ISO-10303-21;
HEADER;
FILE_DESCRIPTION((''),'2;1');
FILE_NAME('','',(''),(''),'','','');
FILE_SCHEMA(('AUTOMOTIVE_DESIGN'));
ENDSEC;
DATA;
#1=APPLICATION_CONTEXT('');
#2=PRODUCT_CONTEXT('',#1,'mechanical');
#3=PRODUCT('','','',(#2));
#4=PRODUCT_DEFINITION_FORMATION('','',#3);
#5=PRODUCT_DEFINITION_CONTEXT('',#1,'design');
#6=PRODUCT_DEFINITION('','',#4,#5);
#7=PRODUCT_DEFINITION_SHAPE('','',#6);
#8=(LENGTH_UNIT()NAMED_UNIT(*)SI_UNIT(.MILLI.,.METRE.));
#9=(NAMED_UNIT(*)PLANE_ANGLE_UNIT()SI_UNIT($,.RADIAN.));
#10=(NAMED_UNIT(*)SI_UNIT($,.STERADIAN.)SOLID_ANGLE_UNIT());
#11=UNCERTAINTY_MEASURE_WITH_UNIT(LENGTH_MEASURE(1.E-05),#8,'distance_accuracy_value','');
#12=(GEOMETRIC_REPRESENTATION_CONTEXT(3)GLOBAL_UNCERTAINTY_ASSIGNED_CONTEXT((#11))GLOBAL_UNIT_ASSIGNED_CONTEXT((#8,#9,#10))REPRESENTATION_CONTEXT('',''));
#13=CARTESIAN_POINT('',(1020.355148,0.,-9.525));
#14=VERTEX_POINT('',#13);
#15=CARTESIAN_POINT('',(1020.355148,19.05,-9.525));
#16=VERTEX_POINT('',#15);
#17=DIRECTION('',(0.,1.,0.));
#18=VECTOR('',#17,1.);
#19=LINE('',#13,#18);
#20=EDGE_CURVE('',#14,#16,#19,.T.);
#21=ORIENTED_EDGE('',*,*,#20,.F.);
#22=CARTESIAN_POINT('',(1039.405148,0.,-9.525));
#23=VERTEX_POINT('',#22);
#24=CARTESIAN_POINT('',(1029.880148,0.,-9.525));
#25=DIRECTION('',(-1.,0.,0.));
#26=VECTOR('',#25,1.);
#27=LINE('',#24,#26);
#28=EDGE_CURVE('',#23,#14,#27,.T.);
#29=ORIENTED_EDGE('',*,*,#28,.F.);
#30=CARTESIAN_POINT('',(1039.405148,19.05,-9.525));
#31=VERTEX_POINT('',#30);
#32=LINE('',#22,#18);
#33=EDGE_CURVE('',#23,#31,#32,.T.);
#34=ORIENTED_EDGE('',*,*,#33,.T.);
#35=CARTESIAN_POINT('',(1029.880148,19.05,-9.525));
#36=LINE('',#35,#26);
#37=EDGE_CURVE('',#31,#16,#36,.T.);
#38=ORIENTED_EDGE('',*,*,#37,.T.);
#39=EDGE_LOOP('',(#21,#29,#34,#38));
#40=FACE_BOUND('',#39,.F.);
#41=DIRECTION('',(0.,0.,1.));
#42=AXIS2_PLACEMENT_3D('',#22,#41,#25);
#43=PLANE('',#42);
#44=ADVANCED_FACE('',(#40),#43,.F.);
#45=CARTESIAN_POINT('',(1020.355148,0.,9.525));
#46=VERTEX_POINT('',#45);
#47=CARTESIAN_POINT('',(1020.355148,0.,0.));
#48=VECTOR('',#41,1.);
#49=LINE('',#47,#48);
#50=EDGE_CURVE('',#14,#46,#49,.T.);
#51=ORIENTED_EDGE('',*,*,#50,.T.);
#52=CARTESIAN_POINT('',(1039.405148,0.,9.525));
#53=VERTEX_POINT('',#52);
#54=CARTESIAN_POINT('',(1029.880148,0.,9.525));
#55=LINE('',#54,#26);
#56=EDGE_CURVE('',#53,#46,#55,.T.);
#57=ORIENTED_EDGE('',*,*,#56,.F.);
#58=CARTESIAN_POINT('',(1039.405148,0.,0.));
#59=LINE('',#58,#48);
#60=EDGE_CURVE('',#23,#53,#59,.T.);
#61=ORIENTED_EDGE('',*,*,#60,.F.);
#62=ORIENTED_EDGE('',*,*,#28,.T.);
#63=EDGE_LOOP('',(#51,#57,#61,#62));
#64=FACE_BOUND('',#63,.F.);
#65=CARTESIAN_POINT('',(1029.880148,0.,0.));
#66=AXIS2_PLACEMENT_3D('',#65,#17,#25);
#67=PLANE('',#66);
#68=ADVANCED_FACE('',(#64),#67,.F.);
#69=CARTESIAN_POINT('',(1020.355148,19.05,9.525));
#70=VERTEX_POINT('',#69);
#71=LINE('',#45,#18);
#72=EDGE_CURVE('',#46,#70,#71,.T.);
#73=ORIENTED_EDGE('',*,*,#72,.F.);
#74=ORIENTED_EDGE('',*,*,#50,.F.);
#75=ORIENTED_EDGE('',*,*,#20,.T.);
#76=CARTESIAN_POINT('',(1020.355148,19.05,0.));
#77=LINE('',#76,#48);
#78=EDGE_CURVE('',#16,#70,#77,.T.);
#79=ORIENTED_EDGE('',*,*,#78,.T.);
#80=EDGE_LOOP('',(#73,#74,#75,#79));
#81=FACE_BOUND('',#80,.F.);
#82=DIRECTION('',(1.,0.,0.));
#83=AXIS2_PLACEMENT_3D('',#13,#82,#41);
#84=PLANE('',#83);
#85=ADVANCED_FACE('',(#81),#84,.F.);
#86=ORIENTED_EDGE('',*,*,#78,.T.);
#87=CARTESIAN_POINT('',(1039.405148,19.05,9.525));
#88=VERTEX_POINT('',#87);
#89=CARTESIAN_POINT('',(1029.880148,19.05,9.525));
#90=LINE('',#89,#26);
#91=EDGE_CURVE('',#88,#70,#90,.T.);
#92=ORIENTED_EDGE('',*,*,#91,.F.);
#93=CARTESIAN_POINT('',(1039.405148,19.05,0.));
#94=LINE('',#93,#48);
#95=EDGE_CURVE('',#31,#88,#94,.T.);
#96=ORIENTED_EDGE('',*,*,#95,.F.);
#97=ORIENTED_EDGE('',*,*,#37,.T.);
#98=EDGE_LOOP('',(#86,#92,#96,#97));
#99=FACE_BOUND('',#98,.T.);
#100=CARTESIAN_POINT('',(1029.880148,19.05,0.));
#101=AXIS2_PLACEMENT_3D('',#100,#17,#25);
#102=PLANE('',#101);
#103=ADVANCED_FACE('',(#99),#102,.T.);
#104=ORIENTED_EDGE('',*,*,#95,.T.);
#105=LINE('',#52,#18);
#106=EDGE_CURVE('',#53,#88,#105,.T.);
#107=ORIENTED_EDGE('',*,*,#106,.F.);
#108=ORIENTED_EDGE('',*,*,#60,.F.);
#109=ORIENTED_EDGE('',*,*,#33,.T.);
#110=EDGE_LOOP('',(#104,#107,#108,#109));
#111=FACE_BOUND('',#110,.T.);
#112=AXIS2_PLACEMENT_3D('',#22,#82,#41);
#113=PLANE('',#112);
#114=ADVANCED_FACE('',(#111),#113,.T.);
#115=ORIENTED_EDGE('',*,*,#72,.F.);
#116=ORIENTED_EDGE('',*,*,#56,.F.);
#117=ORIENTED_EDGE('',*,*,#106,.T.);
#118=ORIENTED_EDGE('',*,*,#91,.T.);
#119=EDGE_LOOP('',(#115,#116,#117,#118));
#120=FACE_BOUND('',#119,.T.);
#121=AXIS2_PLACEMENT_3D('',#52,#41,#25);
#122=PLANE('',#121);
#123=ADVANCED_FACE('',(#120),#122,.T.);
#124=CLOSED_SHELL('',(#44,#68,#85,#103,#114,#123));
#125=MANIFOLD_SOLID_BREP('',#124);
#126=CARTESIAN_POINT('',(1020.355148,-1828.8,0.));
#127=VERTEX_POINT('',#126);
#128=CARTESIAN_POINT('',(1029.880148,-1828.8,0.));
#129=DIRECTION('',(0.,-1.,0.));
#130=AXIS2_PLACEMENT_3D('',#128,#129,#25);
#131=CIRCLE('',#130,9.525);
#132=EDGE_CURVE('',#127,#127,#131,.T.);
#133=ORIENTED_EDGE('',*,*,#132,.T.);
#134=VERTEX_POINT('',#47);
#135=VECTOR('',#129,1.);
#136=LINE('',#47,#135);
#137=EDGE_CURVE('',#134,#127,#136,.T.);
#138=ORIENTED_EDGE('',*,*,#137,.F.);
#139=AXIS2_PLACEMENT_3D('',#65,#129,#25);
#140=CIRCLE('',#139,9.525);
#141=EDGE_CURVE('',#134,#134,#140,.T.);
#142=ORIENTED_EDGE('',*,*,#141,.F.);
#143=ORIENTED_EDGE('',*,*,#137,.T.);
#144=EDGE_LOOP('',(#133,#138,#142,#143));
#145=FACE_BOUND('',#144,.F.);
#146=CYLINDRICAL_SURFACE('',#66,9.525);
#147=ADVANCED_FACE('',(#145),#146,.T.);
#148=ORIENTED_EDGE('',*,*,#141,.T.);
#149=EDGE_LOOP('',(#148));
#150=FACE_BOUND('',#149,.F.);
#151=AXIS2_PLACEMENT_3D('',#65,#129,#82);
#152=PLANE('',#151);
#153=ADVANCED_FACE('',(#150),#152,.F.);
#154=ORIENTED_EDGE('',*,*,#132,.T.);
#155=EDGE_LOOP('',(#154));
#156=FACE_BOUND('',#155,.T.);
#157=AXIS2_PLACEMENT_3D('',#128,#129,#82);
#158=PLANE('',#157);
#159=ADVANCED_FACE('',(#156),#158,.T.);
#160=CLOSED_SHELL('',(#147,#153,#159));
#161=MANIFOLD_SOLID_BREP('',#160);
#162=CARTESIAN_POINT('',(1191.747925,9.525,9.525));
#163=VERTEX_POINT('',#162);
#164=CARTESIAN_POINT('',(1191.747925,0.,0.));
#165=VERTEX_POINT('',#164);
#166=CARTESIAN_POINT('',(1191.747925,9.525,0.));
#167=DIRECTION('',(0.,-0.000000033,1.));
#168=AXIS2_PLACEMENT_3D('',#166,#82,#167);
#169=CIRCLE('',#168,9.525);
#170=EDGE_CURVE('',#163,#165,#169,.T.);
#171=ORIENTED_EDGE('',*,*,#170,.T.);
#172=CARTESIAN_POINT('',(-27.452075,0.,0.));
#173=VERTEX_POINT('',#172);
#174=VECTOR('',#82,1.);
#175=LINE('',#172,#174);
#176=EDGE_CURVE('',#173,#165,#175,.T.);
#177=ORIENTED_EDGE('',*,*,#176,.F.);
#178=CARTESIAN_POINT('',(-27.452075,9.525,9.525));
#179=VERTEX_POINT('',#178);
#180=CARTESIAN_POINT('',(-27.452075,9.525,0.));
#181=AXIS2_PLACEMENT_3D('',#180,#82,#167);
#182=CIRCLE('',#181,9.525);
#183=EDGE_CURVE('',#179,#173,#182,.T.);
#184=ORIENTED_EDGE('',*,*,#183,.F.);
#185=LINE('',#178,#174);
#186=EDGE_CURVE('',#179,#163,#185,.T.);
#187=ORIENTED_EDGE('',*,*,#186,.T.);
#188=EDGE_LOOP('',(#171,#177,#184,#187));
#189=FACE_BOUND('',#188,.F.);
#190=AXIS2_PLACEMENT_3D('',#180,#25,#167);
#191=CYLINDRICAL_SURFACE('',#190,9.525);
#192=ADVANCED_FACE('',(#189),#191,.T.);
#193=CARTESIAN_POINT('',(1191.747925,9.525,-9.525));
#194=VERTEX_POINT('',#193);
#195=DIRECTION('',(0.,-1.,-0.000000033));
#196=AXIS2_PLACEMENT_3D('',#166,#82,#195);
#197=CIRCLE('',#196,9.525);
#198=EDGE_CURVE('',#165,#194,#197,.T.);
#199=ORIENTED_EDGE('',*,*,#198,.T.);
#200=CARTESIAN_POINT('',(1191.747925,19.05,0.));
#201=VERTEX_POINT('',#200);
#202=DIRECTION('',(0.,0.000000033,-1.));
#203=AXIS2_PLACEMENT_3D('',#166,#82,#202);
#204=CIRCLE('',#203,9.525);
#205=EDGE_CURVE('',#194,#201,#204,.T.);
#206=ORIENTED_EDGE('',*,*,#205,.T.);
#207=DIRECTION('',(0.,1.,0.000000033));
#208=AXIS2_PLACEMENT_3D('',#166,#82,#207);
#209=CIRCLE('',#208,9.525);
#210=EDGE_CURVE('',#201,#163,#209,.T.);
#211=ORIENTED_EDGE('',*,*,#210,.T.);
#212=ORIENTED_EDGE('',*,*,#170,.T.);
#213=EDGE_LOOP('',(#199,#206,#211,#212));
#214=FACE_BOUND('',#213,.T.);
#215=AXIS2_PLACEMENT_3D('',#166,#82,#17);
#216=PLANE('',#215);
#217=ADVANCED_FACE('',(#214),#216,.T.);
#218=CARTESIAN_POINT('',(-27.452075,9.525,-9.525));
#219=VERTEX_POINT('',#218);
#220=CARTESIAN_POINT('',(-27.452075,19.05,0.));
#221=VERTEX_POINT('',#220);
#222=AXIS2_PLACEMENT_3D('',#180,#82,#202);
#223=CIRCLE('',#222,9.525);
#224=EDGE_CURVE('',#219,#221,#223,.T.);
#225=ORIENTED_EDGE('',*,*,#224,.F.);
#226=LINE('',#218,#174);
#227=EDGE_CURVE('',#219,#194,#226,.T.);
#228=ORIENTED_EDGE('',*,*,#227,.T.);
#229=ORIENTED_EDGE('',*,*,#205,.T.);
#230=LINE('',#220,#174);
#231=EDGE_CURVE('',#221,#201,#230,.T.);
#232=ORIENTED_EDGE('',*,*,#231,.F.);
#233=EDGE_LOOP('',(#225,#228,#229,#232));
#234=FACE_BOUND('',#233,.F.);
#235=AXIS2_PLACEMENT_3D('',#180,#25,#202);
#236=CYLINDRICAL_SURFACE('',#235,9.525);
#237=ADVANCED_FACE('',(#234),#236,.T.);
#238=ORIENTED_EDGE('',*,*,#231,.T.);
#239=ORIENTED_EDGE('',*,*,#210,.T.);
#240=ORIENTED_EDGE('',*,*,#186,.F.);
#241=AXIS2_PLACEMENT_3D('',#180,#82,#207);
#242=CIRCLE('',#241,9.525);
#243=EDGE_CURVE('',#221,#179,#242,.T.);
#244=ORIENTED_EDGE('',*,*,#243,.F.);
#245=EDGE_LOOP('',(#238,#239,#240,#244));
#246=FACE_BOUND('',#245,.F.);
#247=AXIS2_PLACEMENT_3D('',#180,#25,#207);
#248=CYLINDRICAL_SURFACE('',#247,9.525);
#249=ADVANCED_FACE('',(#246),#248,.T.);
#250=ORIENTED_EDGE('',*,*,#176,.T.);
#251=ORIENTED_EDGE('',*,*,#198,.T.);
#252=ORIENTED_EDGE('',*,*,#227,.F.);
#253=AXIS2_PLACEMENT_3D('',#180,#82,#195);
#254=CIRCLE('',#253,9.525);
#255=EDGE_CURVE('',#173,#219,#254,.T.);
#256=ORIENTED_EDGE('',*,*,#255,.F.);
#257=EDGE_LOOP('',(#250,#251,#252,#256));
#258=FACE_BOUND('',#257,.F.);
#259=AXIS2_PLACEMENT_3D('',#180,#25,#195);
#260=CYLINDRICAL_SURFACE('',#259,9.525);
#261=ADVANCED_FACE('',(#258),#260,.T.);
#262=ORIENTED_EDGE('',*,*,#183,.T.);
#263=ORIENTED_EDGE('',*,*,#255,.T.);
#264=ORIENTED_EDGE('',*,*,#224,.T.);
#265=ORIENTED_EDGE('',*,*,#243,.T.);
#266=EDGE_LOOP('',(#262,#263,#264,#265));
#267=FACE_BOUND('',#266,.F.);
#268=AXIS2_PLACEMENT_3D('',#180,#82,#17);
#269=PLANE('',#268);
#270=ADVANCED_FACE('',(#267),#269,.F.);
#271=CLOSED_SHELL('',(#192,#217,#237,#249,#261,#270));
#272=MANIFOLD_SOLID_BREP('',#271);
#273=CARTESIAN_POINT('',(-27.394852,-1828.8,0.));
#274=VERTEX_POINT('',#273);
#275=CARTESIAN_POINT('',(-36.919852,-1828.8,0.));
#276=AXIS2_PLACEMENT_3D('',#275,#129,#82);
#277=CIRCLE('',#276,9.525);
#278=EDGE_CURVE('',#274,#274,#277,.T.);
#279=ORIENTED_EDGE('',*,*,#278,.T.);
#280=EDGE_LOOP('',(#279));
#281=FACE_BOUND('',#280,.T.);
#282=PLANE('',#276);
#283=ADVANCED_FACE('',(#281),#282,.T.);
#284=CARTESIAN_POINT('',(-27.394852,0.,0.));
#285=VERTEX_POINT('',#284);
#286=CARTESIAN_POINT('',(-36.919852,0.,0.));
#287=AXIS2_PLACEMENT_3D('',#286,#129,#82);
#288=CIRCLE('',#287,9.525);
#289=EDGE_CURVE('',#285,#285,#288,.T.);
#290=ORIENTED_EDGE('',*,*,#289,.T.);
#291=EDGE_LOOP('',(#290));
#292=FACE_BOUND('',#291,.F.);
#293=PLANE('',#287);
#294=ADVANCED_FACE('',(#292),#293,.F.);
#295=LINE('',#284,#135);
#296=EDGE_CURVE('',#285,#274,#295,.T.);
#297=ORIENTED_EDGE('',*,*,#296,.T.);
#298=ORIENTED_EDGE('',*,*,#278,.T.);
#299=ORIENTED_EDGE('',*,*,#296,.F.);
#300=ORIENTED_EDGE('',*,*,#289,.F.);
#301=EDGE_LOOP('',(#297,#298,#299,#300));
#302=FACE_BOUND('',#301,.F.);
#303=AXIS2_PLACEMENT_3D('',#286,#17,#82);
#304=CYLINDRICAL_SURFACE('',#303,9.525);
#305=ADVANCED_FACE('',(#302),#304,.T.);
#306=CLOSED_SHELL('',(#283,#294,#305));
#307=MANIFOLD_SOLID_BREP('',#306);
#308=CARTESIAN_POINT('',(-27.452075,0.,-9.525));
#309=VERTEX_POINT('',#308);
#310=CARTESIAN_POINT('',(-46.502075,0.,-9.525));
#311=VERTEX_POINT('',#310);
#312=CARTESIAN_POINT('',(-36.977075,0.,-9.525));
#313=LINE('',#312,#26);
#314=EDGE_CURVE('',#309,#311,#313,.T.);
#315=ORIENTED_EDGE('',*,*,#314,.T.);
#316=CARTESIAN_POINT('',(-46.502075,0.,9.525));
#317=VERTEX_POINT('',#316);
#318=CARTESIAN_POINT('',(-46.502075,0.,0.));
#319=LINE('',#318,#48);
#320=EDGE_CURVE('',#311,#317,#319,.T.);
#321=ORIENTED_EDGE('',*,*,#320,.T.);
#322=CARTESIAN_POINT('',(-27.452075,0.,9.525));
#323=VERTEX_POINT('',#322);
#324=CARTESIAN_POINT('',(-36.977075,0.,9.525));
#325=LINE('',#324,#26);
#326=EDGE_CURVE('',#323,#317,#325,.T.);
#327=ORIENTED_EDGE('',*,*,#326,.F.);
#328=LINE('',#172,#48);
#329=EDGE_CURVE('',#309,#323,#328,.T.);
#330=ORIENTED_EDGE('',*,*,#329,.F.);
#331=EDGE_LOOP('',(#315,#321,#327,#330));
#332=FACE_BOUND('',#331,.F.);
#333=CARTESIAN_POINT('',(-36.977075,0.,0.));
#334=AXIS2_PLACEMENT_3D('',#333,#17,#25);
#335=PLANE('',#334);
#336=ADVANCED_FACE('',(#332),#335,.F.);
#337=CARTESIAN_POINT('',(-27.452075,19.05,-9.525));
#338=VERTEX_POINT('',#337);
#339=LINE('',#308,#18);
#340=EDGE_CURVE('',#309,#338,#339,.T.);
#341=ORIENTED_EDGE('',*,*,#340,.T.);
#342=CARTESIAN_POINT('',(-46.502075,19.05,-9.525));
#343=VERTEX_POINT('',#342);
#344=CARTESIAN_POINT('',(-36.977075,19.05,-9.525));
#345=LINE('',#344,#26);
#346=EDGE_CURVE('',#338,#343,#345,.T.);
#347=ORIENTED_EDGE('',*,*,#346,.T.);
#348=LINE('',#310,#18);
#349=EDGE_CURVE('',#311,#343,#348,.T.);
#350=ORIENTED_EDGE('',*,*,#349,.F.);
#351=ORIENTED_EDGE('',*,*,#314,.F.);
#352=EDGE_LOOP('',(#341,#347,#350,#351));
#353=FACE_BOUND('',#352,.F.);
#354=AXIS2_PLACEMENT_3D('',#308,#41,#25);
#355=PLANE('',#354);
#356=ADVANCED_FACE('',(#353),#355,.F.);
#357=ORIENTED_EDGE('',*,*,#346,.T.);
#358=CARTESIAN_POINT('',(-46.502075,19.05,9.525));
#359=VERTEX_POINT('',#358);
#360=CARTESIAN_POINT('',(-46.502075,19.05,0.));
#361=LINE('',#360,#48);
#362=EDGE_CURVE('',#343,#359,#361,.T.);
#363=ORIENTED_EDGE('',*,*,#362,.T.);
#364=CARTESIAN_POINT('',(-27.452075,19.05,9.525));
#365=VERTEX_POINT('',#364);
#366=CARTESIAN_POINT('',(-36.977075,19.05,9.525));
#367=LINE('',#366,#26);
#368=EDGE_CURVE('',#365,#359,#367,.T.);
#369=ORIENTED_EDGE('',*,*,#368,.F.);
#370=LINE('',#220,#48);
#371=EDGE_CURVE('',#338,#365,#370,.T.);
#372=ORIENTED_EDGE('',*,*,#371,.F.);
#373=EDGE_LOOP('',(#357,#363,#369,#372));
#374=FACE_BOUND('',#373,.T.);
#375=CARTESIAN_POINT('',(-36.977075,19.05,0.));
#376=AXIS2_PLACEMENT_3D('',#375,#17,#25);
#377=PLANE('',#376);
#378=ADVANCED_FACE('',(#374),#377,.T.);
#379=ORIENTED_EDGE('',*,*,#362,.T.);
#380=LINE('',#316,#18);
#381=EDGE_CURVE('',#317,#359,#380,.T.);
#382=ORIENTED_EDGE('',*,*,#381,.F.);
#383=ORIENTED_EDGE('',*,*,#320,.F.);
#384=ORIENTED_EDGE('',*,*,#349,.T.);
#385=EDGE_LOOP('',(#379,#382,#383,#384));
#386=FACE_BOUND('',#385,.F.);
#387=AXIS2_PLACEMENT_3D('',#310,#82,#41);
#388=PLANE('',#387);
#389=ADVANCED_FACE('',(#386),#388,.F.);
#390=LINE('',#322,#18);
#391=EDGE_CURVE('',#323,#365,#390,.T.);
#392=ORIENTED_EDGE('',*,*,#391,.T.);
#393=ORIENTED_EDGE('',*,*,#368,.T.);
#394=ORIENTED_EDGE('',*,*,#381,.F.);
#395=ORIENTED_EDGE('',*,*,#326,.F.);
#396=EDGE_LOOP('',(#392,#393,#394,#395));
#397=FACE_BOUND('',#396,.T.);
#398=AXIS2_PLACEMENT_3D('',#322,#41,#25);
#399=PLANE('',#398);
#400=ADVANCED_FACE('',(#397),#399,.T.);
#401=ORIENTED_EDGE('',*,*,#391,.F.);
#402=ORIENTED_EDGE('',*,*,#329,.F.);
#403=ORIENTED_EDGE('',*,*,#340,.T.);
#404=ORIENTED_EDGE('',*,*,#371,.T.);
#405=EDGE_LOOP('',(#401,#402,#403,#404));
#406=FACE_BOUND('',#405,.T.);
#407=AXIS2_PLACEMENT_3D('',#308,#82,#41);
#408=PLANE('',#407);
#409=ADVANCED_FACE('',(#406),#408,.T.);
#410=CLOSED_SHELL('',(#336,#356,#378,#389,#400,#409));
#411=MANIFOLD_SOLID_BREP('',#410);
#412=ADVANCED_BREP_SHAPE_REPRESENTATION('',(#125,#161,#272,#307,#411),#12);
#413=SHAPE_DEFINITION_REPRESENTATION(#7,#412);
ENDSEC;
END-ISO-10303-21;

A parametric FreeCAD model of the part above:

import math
import FreeCAD as App
import Part
import Sketcher
from FreeCAD import Vector
Q = App.Units.Quantity


def add_polygon(sketch, points):
    """Adds a closed chain of lines whose ends are joined by coincident constraints."""
    first, n = sketch.GeometryCount, len(points)
    for a, b in zip(points, points[1:] + points[:1]):
        sketch.addGeometry(Part.LineSegment(App.Vector(*a, 0), App.Vector(*b, 0)), False)
    for i in range(n):
        sketch.addConstraint(Sketcher.Constraint("Coincident", first + i, 2, first + (i + 1) % n, 1))

doc = App.newDocument("Part")
body = doc.addObject("PartDesign::Body", "Body")
body.AllowCompound = True

sketch1 = body.newObject("Sketcher::SketchObject", "Sketch")
sketch1.AttachmentSupport = (doc.getObject("XZ_Plane"), [""])
sketch1.MapMode = "FlatFace"
sketch1.addGeometry([
    Part.Circle(Vector(-37, 0, 0), Vector(0, 0, 1), 10),
    Part.Circle(Vector(1030, 0, 0), Vector(0, 0, 1), 10),
], False)
sketch1.addConstraint([
    Sketcher.Constraint("Equal", 0, 1),
    Sketcher.Constraint("PointOnObject", 0, 3, -1),
    Sketcher.Constraint("PointOnObject", 1, 3, -1),
    Sketcher.Constraint("Diameter", 0, Q("0.75 in")),
    Sketcher.Constraint("DistanceX", 0, 3, 1, 3, Q("42 in")),
    Sketcher.Constraint("DistanceX", -1, 1, 1, 3, 1029.880148),
])
pad1 = body.newObject("PartDesign::Pad", "Pad")
pad1.Profile = sketch1
pad1.Length = Q("72 in")
body2 = doc.addObject("PartDesign::Body", "Body001")
body2.AllowCompound = True

sketch2 = body2.newObject("Sketcher::SketchObject", "Sketch001")
sketch2.AttachmentSupport = (doc.getObject("XZ_Plane001"), [""])
sketch2.MapMode = "FlatFace"
add_polygon(sketch2, [(1039, 10), (1039, -10), (1020, -10), (1020, 10)])
add_polygon(sketch2, [(-27, 10), (-27, -10), (-47, -10), (-47, 10)])
sketch2.addConstraint([
    Sketcher.Constraint("Vertical", 0),
    Sketcher.Constraint("Horizontal", 1),
    Sketcher.Constraint("Vertical", 2),
    Sketcher.Constraint("Horizontal", 3),
    Sketcher.Constraint("Vertical", 4),
    Sketcher.Constraint("Horizontal", 5),
    Sketcher.Constraint("Vertical", 6),
    Sketcher.Constraint("Horizontal", 7),
    Sketcher.Constraint("Horizontal", 1, 2, 4, 2),
    Sketcher.Constraint("Horizontal", 3, 2, 6, 2),
    Sketcher.Constraint("Equal", 3, 5),
    Sketcher.Constraint("Equal", 7, 0),
    Sketcher.Constraint("DistanceX", 1, 2, 1, 1, Q("0.75 in")),
    Sketcher.Constraint("DistanceY", 0, 2, -1, 1, Q("0.375 in")),
    Sketcher.Constraint("DistanceX", -1, 1, 0, 2, 1039.405148),
    Sketcher.Constraint("DistanceX", 4, 2, -1, 1, 27.452075),
])
pad2 = body2.newObject("PartDesign::Pad", "Pad001")
pad2.Profile = sketch2
pad2.Length = Q("0.75 in")
pad2.Reversed = True
body3 = doc.addObject("PartDesign::Body", "Body002")

sketch3 = body3.newObject("Sketcher::SketchObject", "Sketch002")
sketch3.AttachmentSupport = (doc.getObject("YZ_Plane002"), [""])
sketch3.MapMode = "FlatFace"
sketch3.AttachmentOffset = App.Placement(Vector(0, 0, -27.452075), App.Rotation())
sketch3.addGeometry([
    Part.ArcOfCircle(Part.Circle(Vector(10, 0, 0), Vector(0, 0, 1), 10), math.radians(-90), math.radians(0)),
    Part.ArcOfCircle(Part.Circle(Vector(10, 0, 0), Vector(0, 0, 1), 10), math.radians(0), math.radians(90)),
    Part.ArcOfCircle(Part.Circle(Vector(10, 0, 0), Vector(0, 0, 1), 10), math.radians(90), math.radians(180)),
    Part.ArcOfCircle(Part.Circle(Vector(10, 0, 0), Vector(0, 0, 1), 10), math.radians(-180), math.radians(-90)),
], False)
sketch3.addConstraint([
    Sketcher.Constraint("Tangent", 0, 2, 1, 1),
    Sketcher.Constraint("Tangent", 1, 2, 2, 1),
    Sketcher.Constraint("Tangent", 2, 2, 3, 1),
    Sketcher.Constraint("Tangent", 3, 2, 0, 1),
    Sketcher.Constraint("Coincident", 2, 2, -1, 1),
    Sketcher.Constraint("Equal", 0, 1),
    Sketcher.Constraint("Symmetric", 1, 2, 3, 2, -1),
    Sketcher.Constraint("PointOnObject", 0, 2, -1),
    Sketcher.Constraint("Vertical", 3, 3, 1, 2),
    Sketcher.Constraint("Radius", 0, Q("0.375 in")),
])
pad3 = body3.newObject("PartDesign::Pad", "Pad002")
pad3.Profile = sketch3
pad3.Length = Q("48 in")

doc.recompute()
